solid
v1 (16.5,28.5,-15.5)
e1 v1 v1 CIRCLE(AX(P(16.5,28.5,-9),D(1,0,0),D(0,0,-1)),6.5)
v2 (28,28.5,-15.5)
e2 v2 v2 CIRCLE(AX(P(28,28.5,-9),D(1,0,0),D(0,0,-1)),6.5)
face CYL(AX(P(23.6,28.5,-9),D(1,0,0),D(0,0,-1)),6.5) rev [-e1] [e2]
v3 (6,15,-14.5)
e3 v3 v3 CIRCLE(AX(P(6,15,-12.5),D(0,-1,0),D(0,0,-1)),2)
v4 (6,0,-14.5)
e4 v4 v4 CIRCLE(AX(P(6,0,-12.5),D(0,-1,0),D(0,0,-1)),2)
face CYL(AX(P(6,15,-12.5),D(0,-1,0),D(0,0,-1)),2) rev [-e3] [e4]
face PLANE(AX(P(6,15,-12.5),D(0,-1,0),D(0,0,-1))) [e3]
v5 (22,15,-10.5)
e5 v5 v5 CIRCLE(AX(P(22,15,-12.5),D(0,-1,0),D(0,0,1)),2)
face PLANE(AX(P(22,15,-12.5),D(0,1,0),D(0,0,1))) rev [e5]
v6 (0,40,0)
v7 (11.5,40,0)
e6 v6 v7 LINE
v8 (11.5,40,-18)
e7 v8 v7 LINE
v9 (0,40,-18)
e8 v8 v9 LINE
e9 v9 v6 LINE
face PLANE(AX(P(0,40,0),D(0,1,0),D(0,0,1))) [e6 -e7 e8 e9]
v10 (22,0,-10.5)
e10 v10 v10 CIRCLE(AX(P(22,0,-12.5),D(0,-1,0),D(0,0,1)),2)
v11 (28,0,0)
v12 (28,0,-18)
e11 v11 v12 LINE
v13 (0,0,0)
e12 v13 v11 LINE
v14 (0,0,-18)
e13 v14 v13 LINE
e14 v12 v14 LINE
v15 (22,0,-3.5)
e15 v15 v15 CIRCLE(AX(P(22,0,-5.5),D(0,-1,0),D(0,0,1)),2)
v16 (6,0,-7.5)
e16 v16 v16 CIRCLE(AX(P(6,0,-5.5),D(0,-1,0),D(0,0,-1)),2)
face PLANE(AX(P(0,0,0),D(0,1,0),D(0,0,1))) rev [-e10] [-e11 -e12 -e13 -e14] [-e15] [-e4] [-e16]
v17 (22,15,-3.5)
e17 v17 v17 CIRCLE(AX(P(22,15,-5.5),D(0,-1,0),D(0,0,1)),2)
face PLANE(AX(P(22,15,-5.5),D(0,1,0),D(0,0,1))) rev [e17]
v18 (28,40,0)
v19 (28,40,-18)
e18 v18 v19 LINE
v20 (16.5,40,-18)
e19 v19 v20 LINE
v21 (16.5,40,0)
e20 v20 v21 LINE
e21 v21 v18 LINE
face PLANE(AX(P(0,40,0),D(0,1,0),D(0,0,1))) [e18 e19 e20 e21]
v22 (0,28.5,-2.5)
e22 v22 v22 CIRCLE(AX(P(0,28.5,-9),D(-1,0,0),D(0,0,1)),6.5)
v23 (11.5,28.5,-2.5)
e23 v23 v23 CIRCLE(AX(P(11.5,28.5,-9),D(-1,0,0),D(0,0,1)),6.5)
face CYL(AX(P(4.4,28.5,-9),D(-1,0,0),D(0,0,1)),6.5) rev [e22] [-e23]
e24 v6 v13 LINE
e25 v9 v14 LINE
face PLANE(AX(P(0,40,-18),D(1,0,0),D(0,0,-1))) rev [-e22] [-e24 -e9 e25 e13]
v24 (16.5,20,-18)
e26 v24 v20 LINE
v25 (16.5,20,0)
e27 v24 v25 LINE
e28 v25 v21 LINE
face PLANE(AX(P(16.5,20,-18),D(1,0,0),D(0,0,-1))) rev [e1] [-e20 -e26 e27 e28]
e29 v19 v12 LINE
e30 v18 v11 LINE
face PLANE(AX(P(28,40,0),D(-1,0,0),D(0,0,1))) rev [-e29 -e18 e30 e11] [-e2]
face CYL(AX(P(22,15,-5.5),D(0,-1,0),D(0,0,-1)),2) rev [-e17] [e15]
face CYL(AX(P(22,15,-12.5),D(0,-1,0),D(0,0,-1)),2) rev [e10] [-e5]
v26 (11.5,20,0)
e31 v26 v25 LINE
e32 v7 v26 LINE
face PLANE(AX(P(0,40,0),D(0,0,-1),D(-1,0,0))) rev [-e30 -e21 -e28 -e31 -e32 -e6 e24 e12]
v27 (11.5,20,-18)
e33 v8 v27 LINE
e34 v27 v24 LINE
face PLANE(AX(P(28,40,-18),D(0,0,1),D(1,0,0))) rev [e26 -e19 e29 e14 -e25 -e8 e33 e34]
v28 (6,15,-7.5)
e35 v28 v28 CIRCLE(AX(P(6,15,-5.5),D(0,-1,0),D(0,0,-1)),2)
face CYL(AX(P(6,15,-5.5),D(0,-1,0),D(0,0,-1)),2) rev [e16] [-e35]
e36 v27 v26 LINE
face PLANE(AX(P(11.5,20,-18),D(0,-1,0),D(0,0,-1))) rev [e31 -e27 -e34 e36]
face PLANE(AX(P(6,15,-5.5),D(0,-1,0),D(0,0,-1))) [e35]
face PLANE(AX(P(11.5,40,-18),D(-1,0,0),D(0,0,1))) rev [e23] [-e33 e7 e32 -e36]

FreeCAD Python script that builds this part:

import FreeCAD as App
import Part
import Sketcher
from FreeCAD import Vector

doc = App.newDocument("Part")
params = doc.addObject("Spreadsheet::Sheet", "Params")
for row, (alias, value) in enumerate([
    ("sketch1_width", "28 mm"),
    ("sketch1_height", "18 mm"),
    ("pad1_length", "40 mm"),
    ("sketch2_diameter", "4 mm"),
    ("pocket1_length", "15 mm"),
    ("sketch3_diameter", "15 mm"),
    ("pocket2_length", "1.2 mm"),
    ("sketch4_diameter", "13 mm"),
    ("pocket3_length", "3.2 mm"),
    ("sketch5_diameter", "5 mm"),
    ("sketch6_diameter", "15 mm"),
    ("pocket5_length", "1.2 mm"),
    ("sketch7_diameter", "13 mm"),
    ("pocket6_length", "3.2 mm"),
    ("sketch8_width", "5 mm"),
    ("sketch8_height", "20 mm"),
    ("sketch9_diameter", "15 mm"),
    ("sketch9_diameter2", "13 mm"),
    ("pad2_length", "1.2 mm"),
    ("sketch10_diameter", "15 mm"),
    ("sketch10_diameter2", "13 mm"),
    ("pad3_length", "1.2 mm"),
    ("sketch11_diameter", "13 mm"),
    ("pocket8_length", "19.2 mm"),
], start=1):
    params.set(f"A{row}", alias)
    params.set(f"B{row}", "=" + value)
    params.setAlias(f"B{row}", alias)

body = doc.addObject("PartDesign::Body", "Body")

sketch1 = body.newObject("Sketcher::SketchObject", "Sketch")
sketch1.AttachmentSupport = (doc.getObject("XZ_Plane"), [""])
sketch1.MapMode = "FlatFace"
sketch1.addGeometry([
    Part.LineSegment(Vector(0, -18, 0), Vector(0, 0, 0)),
    Part.LineSegment(Vector(0, 0, 0), Vector(28, 0, 0)),
    Part.LineSegment(Vector(28, 0, 0), Vector(28, -18, 0)),
    Part.LineSegment(Vector(28, -18, 0), Vector(0, -18, 0)),
], False)
sketch1.addConstraint([
    Sketcher.Constraint("Coincident", 0, 2, 1, 1),
    Sketcher.Constraint("Coincident", 1, 2, 2, 1),
    Sketcher.Constraint("Coincident", 2, 2, 3, 1),
    Sketcher.Constraint("Coincident", 3, 2, 0, 1),
    Sketcher.Constraint("Vertical", 0),
    Sketcher.Constraint("Horizontal", 1),
    Sketcher.Constraint("Vertical", 2),
    Sketcher.Constraint("Horizontal", 3),
    Sketcher.Constraint("Coincident", 0, 2, -1, 1),
    Sketcher.Constraint("DistanceX", 1, 1, 1, 2, 28.0),
    Sketcher.Constraint("DistanceY", 0, 1, 0, 2, 18.0),
])
sketch1.setExpression("Constraints[9]", "Params.sketch1_width")
sketch1.setExpression("Constraints[10]", "Params.sketch1_height")
pad1 = body.newObject("PartDesign::Pad", "Pad")
pad1.Profile = sketch1
pad1.setExpression("Length", "Params.pad1_length")
pad1.Reversed = True

sketch2 = body.newObject("Sketcher::SketchObject", "Sketch001")
sketch2.AttachmentSupport = (doc.getObject("XZ_Plane"), [""])
sketch2.MapMode = "FlatFace"
sketch2.addGeometry([
    Part.Circle(Vector(6, -5.5, 0), Vector(0, 0, 1), 2),
    Part.Circle(Vector(6, -12.5, 0), Vector(0, 0, 1), 2),
    Part.Circle(Vector(22, -12.5, 0), Vector(0, 0, 1), 2),
    Part.Circle(Vector(22, -5.5, 0), Vector(0, 0, 1), 2),
], False)
sketch2.addConstraint([
    Sketcher.Constraint("Equal", 0, 1),
    Sketcher.Constraint("Equal", 1, 2),
    Sketcher.Constraint("Equal", 2, 3),
    Sketcher.Constraint("Horizontal", 1, 3, 2, 3),
    Sketcher.Constraint("Horizontal", 0, 3, 3, 3),
    Sketcher.Constraint("Vertical", 0, 3, 1, 3),
    Sketcher.Constraint("Vertical", 2, 3, 3, 3),
    Sketcher.Constraint("Diameter", 0, 4.0),
    Sketcher.Constraint("DistanceX", -1, 1, 0, 3, 6.0),
    Sketcher.Constraint("DistanceX", -1, 1, 2, 3, 22.0),
    Sketcher.Constraint("DistanceY", 1, 3, 0, 3, 7.0),
    Sketcher.Constraint("DistanceY", 0, 3, -1, 1, 5.5),
])
sketch2.setExpression("Constraints[7]", "Params.sketch2_diameter")
pocket1 = body.newObject("PartDesign::Pocket", "Pocket")
pocket1.Profile = sketch2
pocket1.setExpression("Length", "Params.pocket1_length")

sketch3 = body.newObject("Sketcher::SketchObject", "Sketch002")
sketch3.AttachmentSupport = (doc.getObject("YZ_Plane"), [""])
sketch3.MapMode = "FlatFace"
sketch3.AttachmentOffset = App.Placement(Vector(0, 0, 28), App.Rotation())
sketch3.addGeometry(Part.Circle(Vector(28.5, -9, 0), Vector(0, 0, 1), 7.5), False)
sketch3.addConstraint([
    Sketcher.Constraint("Diameter", 0, 15.0),
    Sketcher.Constraint("DistanceY", 0, 3, -1, 1, 9.0),
    Sketcher.Constraint("DistanceX", -1, 1, 0, 3, 28.5),
])
sketch3.setExpression("Constraints[0]", "Params.sketch3_diameter")
pocket2 = body.newObject("PartDesign::Pocket", "Pocket001")
pocket2.Profile = sketch3
pocket2.setExpression("Length", "Params.pocket2_length")

sketch4 = body.newObject("Sketcher::SketchObject", "Sketch003")
sketch4.AttachmentSupport = (doc.getObject("YZ_Plane"), [""])
sketch4.MapMode = "FlatFace"
sketch4.AttachmentOffset = App.Placement(Vector(0, 0, 26.8), App.Rotation())
sketch4.addGeometry(Part.Circle(Vector(28.5, -9, 0), Vector(0, 0, 1), 6.5), False)
sketch4.addConstraint([
    Sketcher.Constraint("Diameter", 0, 13.0),
    Sketcher.Constraint("DistanceY", 0, 3, -1, 1, 9.0),
    Sketcher.Constraint("DistanceX", -1, 1, 0, 3, 28.5),
])
sketch4.setExpression("Constraints[0]", "Params.sketch4_diameter")
pocket3 = body.newObject("PartDesign::Pocket", "Pocket002")
pocket3.Profile = sketch4
pocket3.setExpression("Length", "Params.pocket3_length")

sketch5 = body.newObject("Sketcher::SketchObject", "Sketch004")
sketch5.AttachmentSupport = (doc.getObject("YZ_Plane"), [""])
sketch5.MapMode = "FlatFace"
sketch5.AttachmentOffset = App.Placement(Vector(0, 0, 23.6), App.Rotation())
sketch5.addGeometry(Part.Circle(Vector(28.5, -9, 0), Vector(0, 0, 1), 2.5), False)
sketch5.addConstraint([
    Sketcher.Constraint("Diameter", 0, 5.0),
    Sketcher.Constraint("DistanceY", 0, 3, -1, 1, 9.0),
    Sketcher.Constraint("DistanceX", -1, 1, 0, 3, 28.5),
])
sketch5.setExpression("Constraints[0]", "Params.sketch5_diameter")
pocket4 = body.newObject("PartDesign::Pocket", "Pocket003")
pocket4.Profile = sketch5
pocket4.Type = "UpToFirst"

sketch6 = body.newObject("Sketcher::SketchObject", "Sketch005")
sketch6.AttachmentSupport = (doc.getObject("YZ_Plane"), [""])
sketch6.MapMode = "FlatFace"
sketch6.AttachmentOffset = App.Placement(Vector(0, 0, 1.2), App.Rotation())
sketch6.addGeometry(Part.Circle(Vector(28.5, -9, 0), Vector(0, 0, 1), 7.5), False)
sketch6.addConstraint([
    Sketcher.Constraint("Diameter", 0, 15.0),
    Sketcher.Constraint("DistanceY", 0, 3, -1, 1, 9.0),
    Sketcher.Constraint("DistanceX", -1, 1, 0, 3, 28.5),
])
sketch6.setExpression("Constraints[0]", "Params.sketch6_diameter")
pocket5 = body.newObject("PartDesign::Pocket", "Pocket004")
pocket5.Profile = sketch6
pocket5.setExpression("Length", "Params.pocket5_length")

sketch7 = body.newObject("Sketcher::SketchObject", "Sketch006")
sketch7.AttachmentSupport = (doc.getObject("YZ_Plane"), [""])
sketch7.MapMode = "FlatFace"
sketch7.AttachmentOffset = App.Placement(Vector(0, 0, 4.4), App.Rotation())
sketch7.addGeometry(Part.Circle(Vector(28.5, -9, 0), Vector(0, 0, 1), 6.5), False)
sketch7.addConstraint([
    Sketcher.Constraint("Diameter", 0, 13.0),
    Sketcher.Constraint("DistanceY", 0, 3, -1, 1, 9.0),
    Sketcher.Constraint("DistanceX", -1, 1, 0, 3, 28.5),
])
sketch7.setExpression("Constraints[0]", "Params.sketch7_diameter")
pocket6 = body.newObject("PartDesign::Pocket", "Pocket005")
pocket6.Profile = sketch7
pocket6.setExpression("Length", "Params.pocket6_length")

sketch8 = body.newObject("Sketcher::SketchObject", "Sketch007")
sketch8.AttachmentSupport = (doc.getObject("XY_Plane"), [""])
sketch8.MapMode = "FlatFace"
sketch8.addGeometry([
    Part.LineSegment(Vector(11.5, 40, 0), Vector(11.5, 20, 0)),
    Part.LineSegment(Vector(11.5, 20, 0), Vector(16.5, 20, 0)),
    Part.LineSegment(Vector(16.5, 20, 0), Vector(16.5, 40, 0)),
    Part.LineSegment(Vector(16.5, 40, 0), Vector(11.5, 40, 0)),
], False)
sketch8.addConstraint([
    Sketcher.Constraint("Coincident", 0, 2, 1, 1),
    Sketcher.Constraint("Coincident", 1, 2, 2, 1),
    Sketcher.Constraint("Coincident", 2, 2, 3, 1),
    Sketcher.Constraint("Coincident", 3, 2, 0, 1),
    Sketcher.Constraint("Vertical", 0),
    Sketcher.Constraint("Horizontal", 1),
    Sketcher.Constraint("Vertical", 2),
    Sketcher.Constraint("Horizontal", 3),
    Sketcher.Constraint("DistanceX", 1, 1, 1, 2, 5.0),
    Sketcher.Constraint("DistanceY", 0, 2, 0, 1, 20.0),
    Sketcher.Constraint("DistanceY", -1, 1, 0, 2, 20.0),
    Sketcher.Constraint("DistanceX", -1, 1, 0, 2, 11.5),
])
sketch8.setExpression("Constraints[8]", "Params.sketch8_width")
sketch8.setExpression("Constraints[9]", "Params.sketch8_height")
pocket7 = body.newObject("PartDesign::Pocket", "Pocket006")
pocket7.Profile = sketch8
pocket7.Type = "ThroughAll"

sketch9 = body.newObject("Sketcher::SketchObject", "Sketch008")
sketch9.AttachmentSupport = (doc.getObject("YZ_Plane"), [""])
sketch9.MapMode = "FlatFace"
sketch9.AttachmentOffset = App.Placement(Vector(0, 0, 28), App.Rotation())
sketch9.addGeometry([
    Part.Circle(Vector(28.5, -9, 0), Vector(0, 0, 1), 7.5),
    Part.Circle(Vector(28.5, -9, 0), Vector(0, 0, 1), 6.5),
], False)
sketch9.addConstraint([
    Sketcher.Constraint("Coincident", 1, 3, 0, 3),
    Sketcher.Constraint("Diameter", 0, 15.0),
    Sketcher.Constraint("Diameter", 1, 13.0),
    Sketcher.Constraint("DistanceY", 0, 3, -1, 1, 9.0),
    Sketcher.Constraint("DistanceX", -1, 1, 0, 3, 28.5),
])
sketch9.setExpression("Constraints[1]", "Params.sketch9_diameter")
sketch9.setExpression("Constraints[2]", "Params.sketch9_diameter2")
pad2 = body.newObject("PartDesign::Pad", "Pad001")
pad2.Profile = sketch9
pad2.setExpression("Length", "Params.pad2_length")
pad2.Reversed = True

sketch10 = body.newObject("Sketcher::SketchObject", "Sketch009")
sketch10.AttachmentSupport = (doc.getObject("YZ_Plane"), [""])
sketch10.MapMode = "FlatFace"
sketch10.AttachmentOffset = App.Placement(Vector(0, 0, 1.2), App.Rotation())
sketch10.addGeometry([
    Part.Circle(Vector(28.5, -9, 0), Vector(0, 0, 1), 7.5),
    Part.Circle(Vector(28.5, -9, 0), Vector(0, 0, 1), 6.5),
], False)
sketch10.addConstraint([
    Sketcher.Constraint("Coincident", 1, 3, 0, 3),
    Sketcher.Constraint("Diameter", 0, 15.0),
    Sketcher.Constraint("Diameter", 1, 13.0),
    Sketcher.Constraint("DistanceY", 0, 3, -1, 1, 9.0),
    Sketcher.Constraint("DistanceX", -1, 1, 0, 3, 28.5),
])
sketch10.setExpression("Constraints[1]", "Params.sketch10_diameter")
sketch10.setExpression("Constraints[2]", "Params.sketch10_diameter2")
pad3 = body.newObject("PartDesign::Pad", "Pad002")
pad3.Profile = sketch10
pad3.setExpression("Length", "Params.pad3_length")
pad3.Reversed = True

sketch11 = body.newObject("Sketcher::SketchObject", "Sketch010")
sketch11.AttachmentSupport = (doc.getObject("YZ_Plane"), [""])
sketch11.MapMode = "FlatFace"
sketch11.AttachmentOffset = App.Placement(Vector(0, 0, 23.6), App.Rotation())
sketch11.addGeometry(Part.Circle(Vector(28.5, -9, 0), Vector(0, 0, 1), 6.5), False)
sketch11.addConstraint([
    Sketcher.Constraint("Diameter", 0, 13.0),
    Sketcher.Constraint("DistanceY", 0, 3, -1, 1, 9.0),
    Sketcher.Constraint("DistanceX", -1, 1, 0, 3, 28.5),
])
sketch11.setExpression("Constraints[0]", "Params.sketch11_diameter")
pocket8 = body.newObject("PartDesign::Pocket", "Pocket007")
pocket8.Profile = sketch11
pocket8.setExpression("Length", "Params.pocket8_length")

doc.recompute()
